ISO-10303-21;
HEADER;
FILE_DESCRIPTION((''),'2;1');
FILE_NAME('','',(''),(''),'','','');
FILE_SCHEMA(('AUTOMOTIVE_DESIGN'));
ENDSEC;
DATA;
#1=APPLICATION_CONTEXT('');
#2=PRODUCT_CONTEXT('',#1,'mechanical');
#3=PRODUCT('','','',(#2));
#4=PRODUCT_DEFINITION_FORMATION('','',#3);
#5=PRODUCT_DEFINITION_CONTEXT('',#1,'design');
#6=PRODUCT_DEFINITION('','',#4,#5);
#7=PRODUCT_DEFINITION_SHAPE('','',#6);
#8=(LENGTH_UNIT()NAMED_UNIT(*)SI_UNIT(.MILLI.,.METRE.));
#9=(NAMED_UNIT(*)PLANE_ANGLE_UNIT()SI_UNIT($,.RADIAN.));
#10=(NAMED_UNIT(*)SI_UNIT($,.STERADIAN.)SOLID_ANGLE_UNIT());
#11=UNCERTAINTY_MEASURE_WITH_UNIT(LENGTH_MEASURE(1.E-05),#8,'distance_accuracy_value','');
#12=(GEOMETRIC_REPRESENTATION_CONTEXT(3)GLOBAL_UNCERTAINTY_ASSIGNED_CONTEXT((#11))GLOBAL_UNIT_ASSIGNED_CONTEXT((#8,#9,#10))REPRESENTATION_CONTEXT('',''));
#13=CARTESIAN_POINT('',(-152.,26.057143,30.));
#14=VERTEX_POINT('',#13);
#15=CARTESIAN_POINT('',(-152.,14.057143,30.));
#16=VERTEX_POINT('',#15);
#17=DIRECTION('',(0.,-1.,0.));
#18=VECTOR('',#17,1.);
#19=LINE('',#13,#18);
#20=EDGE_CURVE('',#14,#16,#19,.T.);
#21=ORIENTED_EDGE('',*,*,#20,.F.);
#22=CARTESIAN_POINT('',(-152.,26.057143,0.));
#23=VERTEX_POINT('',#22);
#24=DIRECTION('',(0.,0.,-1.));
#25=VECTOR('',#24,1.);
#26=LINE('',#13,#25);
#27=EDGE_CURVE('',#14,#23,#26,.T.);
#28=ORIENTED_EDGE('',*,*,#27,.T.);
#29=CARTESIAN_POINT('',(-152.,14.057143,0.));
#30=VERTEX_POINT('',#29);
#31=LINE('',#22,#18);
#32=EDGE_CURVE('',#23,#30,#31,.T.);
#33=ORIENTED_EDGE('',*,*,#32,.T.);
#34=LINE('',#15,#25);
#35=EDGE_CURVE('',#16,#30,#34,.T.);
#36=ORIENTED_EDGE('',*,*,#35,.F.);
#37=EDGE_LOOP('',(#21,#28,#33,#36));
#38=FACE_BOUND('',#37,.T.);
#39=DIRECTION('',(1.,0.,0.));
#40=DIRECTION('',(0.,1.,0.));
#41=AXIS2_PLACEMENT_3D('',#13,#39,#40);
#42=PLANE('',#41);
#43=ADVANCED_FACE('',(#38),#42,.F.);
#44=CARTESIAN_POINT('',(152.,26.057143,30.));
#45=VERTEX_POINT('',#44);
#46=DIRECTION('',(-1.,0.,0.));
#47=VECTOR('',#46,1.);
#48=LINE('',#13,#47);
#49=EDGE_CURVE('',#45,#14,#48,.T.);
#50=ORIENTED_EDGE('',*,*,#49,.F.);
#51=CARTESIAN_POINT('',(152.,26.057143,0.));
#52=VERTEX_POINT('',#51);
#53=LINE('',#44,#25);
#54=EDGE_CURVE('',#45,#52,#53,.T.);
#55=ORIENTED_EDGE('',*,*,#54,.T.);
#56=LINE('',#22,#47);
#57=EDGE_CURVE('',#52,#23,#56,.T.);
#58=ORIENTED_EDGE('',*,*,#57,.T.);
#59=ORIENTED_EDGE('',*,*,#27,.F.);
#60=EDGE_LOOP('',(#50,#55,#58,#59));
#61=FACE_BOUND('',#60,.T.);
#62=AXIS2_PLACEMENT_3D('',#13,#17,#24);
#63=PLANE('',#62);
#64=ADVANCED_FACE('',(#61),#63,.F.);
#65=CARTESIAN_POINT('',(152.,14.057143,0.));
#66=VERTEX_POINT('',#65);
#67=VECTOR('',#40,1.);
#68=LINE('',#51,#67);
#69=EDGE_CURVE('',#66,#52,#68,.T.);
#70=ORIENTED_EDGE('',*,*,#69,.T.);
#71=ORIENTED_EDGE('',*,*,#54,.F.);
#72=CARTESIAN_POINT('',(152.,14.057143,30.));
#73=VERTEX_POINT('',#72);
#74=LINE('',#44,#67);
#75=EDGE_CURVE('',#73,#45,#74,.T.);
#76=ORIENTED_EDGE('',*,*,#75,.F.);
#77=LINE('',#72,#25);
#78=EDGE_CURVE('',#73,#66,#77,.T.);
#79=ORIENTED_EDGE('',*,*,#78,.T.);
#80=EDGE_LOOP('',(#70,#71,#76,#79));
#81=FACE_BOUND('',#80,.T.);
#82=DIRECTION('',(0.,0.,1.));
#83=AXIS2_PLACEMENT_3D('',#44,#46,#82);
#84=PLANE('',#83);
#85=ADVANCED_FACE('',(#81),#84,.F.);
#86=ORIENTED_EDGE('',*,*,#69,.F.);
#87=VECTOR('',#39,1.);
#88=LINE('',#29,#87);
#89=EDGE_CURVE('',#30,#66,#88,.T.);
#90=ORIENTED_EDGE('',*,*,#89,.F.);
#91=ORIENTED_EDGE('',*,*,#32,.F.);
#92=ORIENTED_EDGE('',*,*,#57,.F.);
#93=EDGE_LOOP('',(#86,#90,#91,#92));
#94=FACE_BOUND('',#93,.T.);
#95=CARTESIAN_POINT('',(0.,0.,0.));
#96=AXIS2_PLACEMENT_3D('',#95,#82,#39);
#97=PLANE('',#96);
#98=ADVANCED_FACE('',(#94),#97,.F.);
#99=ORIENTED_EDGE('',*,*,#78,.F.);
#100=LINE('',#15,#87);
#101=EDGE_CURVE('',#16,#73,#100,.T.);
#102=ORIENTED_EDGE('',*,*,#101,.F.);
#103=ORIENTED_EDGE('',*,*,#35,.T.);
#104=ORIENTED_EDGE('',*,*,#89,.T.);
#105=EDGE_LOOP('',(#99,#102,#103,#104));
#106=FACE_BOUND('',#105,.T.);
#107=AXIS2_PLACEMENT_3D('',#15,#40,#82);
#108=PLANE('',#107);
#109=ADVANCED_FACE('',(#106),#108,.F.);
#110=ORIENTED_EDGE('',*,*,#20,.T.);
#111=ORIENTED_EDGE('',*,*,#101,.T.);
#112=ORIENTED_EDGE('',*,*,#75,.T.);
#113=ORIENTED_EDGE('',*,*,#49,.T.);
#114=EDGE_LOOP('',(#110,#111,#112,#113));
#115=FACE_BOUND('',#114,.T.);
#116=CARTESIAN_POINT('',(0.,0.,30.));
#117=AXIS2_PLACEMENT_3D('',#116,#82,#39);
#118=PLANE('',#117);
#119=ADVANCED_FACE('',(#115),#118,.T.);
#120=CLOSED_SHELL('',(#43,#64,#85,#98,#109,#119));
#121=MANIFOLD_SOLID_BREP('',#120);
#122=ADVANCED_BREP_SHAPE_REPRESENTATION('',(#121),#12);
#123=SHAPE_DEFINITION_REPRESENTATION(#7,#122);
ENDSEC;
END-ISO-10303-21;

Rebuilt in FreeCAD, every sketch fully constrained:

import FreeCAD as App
import Part
import Sketcher
from FreeCAD import Vector
Q = App.Units.Quantity


def add_polygon(sketch, points):
    """Adds a closed chain of lines whose ends are joined by coincident constraints."""
    first, n = sketch.GeometryCount, len(points)
    for a, b in zip(points, points[1:] + points[:1]):
        sketch.addGeometry(Part.LineSegment(App.Vector(*a, 0), App.Vector(*b, 0)), False)
    for i in range(n):
        sketch.addConstraint(Sketcher.Constraint("Coincident", first + i, 2, first + (i + 1) % n, 1))

doc = App.newDocument("Part")
body = doc.addObject("PartDesign::Body", "Body")

# Sketch on XY plane
sketch1 = body.newObject("Sketcher::SketchObject", "Sketch")
sketch1.AttachmentSupport = (doc.getObject("XY_Plane"), [""])
sketch1.MapMode = "FlatFace"
add_polygon(sketch1, [(-152, 26.057143), (-152, 14.057143), (152, 14.057143), (152, 26.057143)])  # lines 0-3
sketch1.addConstraint([
    Sketcher.Constraint("Vertical", 0),
    Sketcher.Constraint("Horizontal", 1),
    Sketcher.Constraint("Vertical", 2),
    Sketcher.Constraint("Horizontal", 3),
    Sketcher.Constraint("DistanceX", 1, 1, 1, 2, Q("304 mm")),
    Sketcher.Constraint("DistanceY", 0, 2, 0, 1, Q("12 mm")),
    Sketcher.Constraint("DistanceX", 0, 2, -1, 1, Q("152 mm")),
    Sketcher.Constraint("DistanceY", -1, 1, 0, 2, Q("14.057143 mm")),
])
pad1 = body.newObject("PartDesign::Pad", "Pad")
pad1.Profile = sketch1
pad1.Length = 30

doc.recompute()
